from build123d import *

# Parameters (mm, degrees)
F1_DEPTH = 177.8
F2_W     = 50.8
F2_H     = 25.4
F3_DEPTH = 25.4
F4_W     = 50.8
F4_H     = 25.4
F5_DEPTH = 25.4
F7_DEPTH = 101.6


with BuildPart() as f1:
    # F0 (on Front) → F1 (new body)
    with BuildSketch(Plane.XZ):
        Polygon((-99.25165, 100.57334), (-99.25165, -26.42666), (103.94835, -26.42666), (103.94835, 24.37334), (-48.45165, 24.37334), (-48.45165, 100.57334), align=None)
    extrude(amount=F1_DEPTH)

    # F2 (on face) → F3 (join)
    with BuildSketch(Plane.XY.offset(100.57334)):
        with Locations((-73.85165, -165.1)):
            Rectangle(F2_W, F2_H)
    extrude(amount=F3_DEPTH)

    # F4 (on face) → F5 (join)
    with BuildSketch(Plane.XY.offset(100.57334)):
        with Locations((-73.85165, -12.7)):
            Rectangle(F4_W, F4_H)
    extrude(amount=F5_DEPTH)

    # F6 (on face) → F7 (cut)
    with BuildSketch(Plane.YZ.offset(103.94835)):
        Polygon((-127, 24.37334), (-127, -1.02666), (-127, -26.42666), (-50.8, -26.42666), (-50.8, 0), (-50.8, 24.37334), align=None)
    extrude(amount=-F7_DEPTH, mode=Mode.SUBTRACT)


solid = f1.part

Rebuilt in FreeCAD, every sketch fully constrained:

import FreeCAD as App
import Part
import Sketcher

V = App.Vector
Q = App.Units.Quantity


def add_polygon(sketch, points):
    """Adds a closed chain of lines whose ends are joined by coincident constraints."""
    first, n = sketch.GeometryCount, len(points)
    for a, b in zip(points, points[1:] + points[:1]):
        sketch.addGeometry(Part.LineSegment(App.Vector(*a, 0), App.Vector(*b, 0)), False)
    for i in range(n):
        sketch.addConstraint(Sketcher.Constraint("Coincident", first + i, 2, first + (i + 1) % n, 1))

doc = App.newDocument("Part")
body = doc.addObject("PartDesign::Body", "Body")

# Sketch on XZ plane
sketch1 = doc.addObject("Sketcher::SketchObject", "Sketch")
body.addObject(sketch1)
sketch1.AttachmentSupport = (doc.XZ_Plane, [""])
sketch1.MapMode = "FlatFace"
add_polygon(sketch1, [(-99, 101), (-99, -26), (104, -26), (104, 24), (-48, 24), (-48, 101)])  # lines 0-5
sketch1.addConstraint([
    Sketcher.Constraint("Vertical", 0),
    Sketcher.Constraint("Horizontal", 1),
    Sketcher.Constraint("Vertical", 2),
    Sketcher.Constraint("Horizontal", 3),
    Sketcher.Constraint("Vertical", 4),
    Sketcher.Constraint("Horizontal", 5),
    Sketcher.Constraint("Equal", 5, 2),
    Sketcher.Constraint("DistanceX", 1, 1, 1, 2, Q("8 in")),
    Sketcher.Constraint("DistanceX", 3, 2, 3, 1, Q("6 in")),
    Sketcher.Constraint("DistanceY", 0, 2, 0, 1, Q("5 in")),
    Sketcher.Constraint("DistanceX", 0, 2, -1, 1, 99.25165),
    Sketcher.Constraint("DistanceY", 0, 2, -1, 1, 26.42666),
])
pad1 = doc.addObject("PartDesign::Pad", "Pad")
body.addObject(pad1)
pad1.Profile = sketch1
pad1.Length = Q("7 in")

# Sketch on XY plane
sketch2 = doc.addObject("Sketcher::SketchObject", "Sketch001")
body.addObject(sketch2)
sketch2.AttachmentSupport = (doc.XY_Plane, [""])
sketch2.MapMode = "FlatFace"
sketch2.AttachmentOffset = App.Placement(V(0, 0, 100.57334), App.Rotation())
add_polygon(sketch2, [(-99, -152), (-99, -178), (-48, -178), (-48, -152)])  # lines 0-3
sketch2.addConstraint([
    Sketcher.Constraint("Vertical", 0),
    Sketcher.Constraint("Horizontal", 1),
    Sketcher.Constraint("Vertical", 2),
    Sketcher.Constraint("Horizontal", 3),
    Sketcher.Constraint("DistanceX", 1, 1, 1, 2, Q("2 in")),
    Sketcher.Constraint("DistanceY", 0, 2, 0, 1, Q("1 in")),
    Sketcher.Constraint("DistanceY", 0, 2, -1, 1, Q("7 in")),
    Sketcher.Constraint("DistanceX", 0, 2, -1, 1, 99.25165),
])
pad2 = doc.addObject("PartDesign::Pad", "Pad001")
body.addObject(pad2)
pad2.Profile = sketch2
pad2.Length = Q("1 in")

# Sketch on XY plane
sketch3 = doc.addObject("Sketcher::SketchObject", "Sketch002")
body.addObject(sketch3)
sketch3.AttachmentSupport = (doc.XY_Plane, [""])
sketch3.MapMode = "FlatFace"
sketch3.AttachmentOffset = App.Placement(V(0, 0, 100.57334), App.Rotation())
add_polygon(sketch3, [(-99, 0), (-99, -25), (-48, -25), (-48, 0)])  # lines 0-3
sketch3.addConstraint([
    Sketcher.Constraint("Vertical", 0),
    Sketcher.Constraint("Horizontal", 1),
    Sketcher.Constraint("Vertical", 2),
    Sketcher.Constraint("Horizontal", 3),
    Sketcher.Constraint("PointOnObject", 2, 2, -1),
    Sketcher.Constraint("DistanceX", 1, 1, 1, 2, Q("2 in")),
    Sketcher.Constraint("DistanceY", 0, 2, 0, 1, Q("1 in")),
    Sketcher.Constraint("DistanceX", 0, 2, -1, 1, 99.25165),
])
pad3 = doc.addObject("PartDesign::Pad", "Pad002")
body.addObject(pad3)
pad3.Profile = sketch3
pad3.Length = Q("1 in")

# Sketch on YZ plane
sketch4 = doc.addObject("Sketcher::SketchObject", "Sketch003")
body.addObject(sketch4)
sketch4.AttachmentSupport = (doc.YZ_Plane, [""])
sketch4.MapMode = "FlatFace"
sketch4.AttachmentOffset = App.Placement(V(0, 0, 103.94835), App.Rotation())
add_polygon(sketch4, [(-127, 24), (-127, -26), (-51, -26), (-51, 24)])  # lines 0-3
sketch4.addConstraint([
    Sketcher.Constraint("Vertical", 0),
    Sketcher.Constraint("Horizontal", 1),
    Sketcher.Constraint("Vertical", 2),
    Sketcher.Constraint("Horizontal", 3),
    Sketcher.Constraint("DistanceX", 1, 1, 1, 2, Q("3 in")),
    Sketcher.Constraint("DistanceY", 0, 2, 0, 1, Q("2 in")),
    Sketcher.Constraint("DistanceX", 0, 2, -1, 1, Q("5 in")),
    Sketcher.Constraint("DistanceY", 0, 2, -1, 1, 26.42666),
])
pocket1 = doc.addObject("PartDesign::Pocket", "Pocket")
body.addObject(pocket1)
pocket1.Profile = sketch4
pocket1.Length = Q("4 in")

doc.recompute()
